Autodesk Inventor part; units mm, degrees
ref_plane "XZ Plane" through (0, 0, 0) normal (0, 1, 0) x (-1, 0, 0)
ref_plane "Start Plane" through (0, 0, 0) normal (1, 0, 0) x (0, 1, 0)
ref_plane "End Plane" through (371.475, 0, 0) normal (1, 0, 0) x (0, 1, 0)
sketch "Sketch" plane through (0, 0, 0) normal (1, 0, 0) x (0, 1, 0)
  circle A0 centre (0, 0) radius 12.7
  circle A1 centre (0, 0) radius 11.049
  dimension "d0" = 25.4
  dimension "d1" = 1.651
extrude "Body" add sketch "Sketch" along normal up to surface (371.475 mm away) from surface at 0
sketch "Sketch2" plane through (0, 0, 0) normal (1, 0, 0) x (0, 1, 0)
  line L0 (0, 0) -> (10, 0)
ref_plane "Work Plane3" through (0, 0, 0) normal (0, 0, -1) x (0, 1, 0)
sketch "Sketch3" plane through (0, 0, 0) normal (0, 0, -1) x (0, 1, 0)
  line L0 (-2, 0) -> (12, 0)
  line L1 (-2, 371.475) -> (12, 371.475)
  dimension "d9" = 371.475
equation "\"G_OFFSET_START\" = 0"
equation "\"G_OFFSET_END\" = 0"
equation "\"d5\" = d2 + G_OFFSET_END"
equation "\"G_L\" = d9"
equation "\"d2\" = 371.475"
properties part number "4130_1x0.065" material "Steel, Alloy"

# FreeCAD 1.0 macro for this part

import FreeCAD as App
import Part
import Sketcher

V = App.Vector
Q = App.Units.Quantity

doc = App.newDocument("Part")
body = doc.addObject("PartDesign::Body", "Body")

# Sketch on YZ plane
sketch1 = doc.addObject("Sketcher::SketchObject", "Sketch")
body.addObject(sketch1)
sketch1.AttachmentSupport = (doc.YZ_Plane, [""])
sketch1.MapMode = "FlatFace"
sketch1.addGeometry(Part.Circle(V(0, 0, 0), V(0, 0, 1), 13), False)
sketch1.addGeometry(Part.Circle(V(0, 0, 0), V(0, 0, 1), 11), False)
sketch1.addConstraint(Sketcher.Constraint("Coincident", 0, 3, -1, 1))
sketch1.addConstraint(Sketcher.Constraint("Coincident", 1, 3, -1, 1))
sketch1.addConstraint(Sketcher.Constraint("Diameter", 0, Q("1 in")))
sketch1.addConstraint(Sketcher.Constraint("Diameter", 1, Q("0.87 in")))
pad1 = doc.addObject("PartDesign::Pad", "Pad")
body.addObject(pad1)
pad1.Profile = sketch1
pad1.Length = Q("14.625 in")

doc.recompute()
